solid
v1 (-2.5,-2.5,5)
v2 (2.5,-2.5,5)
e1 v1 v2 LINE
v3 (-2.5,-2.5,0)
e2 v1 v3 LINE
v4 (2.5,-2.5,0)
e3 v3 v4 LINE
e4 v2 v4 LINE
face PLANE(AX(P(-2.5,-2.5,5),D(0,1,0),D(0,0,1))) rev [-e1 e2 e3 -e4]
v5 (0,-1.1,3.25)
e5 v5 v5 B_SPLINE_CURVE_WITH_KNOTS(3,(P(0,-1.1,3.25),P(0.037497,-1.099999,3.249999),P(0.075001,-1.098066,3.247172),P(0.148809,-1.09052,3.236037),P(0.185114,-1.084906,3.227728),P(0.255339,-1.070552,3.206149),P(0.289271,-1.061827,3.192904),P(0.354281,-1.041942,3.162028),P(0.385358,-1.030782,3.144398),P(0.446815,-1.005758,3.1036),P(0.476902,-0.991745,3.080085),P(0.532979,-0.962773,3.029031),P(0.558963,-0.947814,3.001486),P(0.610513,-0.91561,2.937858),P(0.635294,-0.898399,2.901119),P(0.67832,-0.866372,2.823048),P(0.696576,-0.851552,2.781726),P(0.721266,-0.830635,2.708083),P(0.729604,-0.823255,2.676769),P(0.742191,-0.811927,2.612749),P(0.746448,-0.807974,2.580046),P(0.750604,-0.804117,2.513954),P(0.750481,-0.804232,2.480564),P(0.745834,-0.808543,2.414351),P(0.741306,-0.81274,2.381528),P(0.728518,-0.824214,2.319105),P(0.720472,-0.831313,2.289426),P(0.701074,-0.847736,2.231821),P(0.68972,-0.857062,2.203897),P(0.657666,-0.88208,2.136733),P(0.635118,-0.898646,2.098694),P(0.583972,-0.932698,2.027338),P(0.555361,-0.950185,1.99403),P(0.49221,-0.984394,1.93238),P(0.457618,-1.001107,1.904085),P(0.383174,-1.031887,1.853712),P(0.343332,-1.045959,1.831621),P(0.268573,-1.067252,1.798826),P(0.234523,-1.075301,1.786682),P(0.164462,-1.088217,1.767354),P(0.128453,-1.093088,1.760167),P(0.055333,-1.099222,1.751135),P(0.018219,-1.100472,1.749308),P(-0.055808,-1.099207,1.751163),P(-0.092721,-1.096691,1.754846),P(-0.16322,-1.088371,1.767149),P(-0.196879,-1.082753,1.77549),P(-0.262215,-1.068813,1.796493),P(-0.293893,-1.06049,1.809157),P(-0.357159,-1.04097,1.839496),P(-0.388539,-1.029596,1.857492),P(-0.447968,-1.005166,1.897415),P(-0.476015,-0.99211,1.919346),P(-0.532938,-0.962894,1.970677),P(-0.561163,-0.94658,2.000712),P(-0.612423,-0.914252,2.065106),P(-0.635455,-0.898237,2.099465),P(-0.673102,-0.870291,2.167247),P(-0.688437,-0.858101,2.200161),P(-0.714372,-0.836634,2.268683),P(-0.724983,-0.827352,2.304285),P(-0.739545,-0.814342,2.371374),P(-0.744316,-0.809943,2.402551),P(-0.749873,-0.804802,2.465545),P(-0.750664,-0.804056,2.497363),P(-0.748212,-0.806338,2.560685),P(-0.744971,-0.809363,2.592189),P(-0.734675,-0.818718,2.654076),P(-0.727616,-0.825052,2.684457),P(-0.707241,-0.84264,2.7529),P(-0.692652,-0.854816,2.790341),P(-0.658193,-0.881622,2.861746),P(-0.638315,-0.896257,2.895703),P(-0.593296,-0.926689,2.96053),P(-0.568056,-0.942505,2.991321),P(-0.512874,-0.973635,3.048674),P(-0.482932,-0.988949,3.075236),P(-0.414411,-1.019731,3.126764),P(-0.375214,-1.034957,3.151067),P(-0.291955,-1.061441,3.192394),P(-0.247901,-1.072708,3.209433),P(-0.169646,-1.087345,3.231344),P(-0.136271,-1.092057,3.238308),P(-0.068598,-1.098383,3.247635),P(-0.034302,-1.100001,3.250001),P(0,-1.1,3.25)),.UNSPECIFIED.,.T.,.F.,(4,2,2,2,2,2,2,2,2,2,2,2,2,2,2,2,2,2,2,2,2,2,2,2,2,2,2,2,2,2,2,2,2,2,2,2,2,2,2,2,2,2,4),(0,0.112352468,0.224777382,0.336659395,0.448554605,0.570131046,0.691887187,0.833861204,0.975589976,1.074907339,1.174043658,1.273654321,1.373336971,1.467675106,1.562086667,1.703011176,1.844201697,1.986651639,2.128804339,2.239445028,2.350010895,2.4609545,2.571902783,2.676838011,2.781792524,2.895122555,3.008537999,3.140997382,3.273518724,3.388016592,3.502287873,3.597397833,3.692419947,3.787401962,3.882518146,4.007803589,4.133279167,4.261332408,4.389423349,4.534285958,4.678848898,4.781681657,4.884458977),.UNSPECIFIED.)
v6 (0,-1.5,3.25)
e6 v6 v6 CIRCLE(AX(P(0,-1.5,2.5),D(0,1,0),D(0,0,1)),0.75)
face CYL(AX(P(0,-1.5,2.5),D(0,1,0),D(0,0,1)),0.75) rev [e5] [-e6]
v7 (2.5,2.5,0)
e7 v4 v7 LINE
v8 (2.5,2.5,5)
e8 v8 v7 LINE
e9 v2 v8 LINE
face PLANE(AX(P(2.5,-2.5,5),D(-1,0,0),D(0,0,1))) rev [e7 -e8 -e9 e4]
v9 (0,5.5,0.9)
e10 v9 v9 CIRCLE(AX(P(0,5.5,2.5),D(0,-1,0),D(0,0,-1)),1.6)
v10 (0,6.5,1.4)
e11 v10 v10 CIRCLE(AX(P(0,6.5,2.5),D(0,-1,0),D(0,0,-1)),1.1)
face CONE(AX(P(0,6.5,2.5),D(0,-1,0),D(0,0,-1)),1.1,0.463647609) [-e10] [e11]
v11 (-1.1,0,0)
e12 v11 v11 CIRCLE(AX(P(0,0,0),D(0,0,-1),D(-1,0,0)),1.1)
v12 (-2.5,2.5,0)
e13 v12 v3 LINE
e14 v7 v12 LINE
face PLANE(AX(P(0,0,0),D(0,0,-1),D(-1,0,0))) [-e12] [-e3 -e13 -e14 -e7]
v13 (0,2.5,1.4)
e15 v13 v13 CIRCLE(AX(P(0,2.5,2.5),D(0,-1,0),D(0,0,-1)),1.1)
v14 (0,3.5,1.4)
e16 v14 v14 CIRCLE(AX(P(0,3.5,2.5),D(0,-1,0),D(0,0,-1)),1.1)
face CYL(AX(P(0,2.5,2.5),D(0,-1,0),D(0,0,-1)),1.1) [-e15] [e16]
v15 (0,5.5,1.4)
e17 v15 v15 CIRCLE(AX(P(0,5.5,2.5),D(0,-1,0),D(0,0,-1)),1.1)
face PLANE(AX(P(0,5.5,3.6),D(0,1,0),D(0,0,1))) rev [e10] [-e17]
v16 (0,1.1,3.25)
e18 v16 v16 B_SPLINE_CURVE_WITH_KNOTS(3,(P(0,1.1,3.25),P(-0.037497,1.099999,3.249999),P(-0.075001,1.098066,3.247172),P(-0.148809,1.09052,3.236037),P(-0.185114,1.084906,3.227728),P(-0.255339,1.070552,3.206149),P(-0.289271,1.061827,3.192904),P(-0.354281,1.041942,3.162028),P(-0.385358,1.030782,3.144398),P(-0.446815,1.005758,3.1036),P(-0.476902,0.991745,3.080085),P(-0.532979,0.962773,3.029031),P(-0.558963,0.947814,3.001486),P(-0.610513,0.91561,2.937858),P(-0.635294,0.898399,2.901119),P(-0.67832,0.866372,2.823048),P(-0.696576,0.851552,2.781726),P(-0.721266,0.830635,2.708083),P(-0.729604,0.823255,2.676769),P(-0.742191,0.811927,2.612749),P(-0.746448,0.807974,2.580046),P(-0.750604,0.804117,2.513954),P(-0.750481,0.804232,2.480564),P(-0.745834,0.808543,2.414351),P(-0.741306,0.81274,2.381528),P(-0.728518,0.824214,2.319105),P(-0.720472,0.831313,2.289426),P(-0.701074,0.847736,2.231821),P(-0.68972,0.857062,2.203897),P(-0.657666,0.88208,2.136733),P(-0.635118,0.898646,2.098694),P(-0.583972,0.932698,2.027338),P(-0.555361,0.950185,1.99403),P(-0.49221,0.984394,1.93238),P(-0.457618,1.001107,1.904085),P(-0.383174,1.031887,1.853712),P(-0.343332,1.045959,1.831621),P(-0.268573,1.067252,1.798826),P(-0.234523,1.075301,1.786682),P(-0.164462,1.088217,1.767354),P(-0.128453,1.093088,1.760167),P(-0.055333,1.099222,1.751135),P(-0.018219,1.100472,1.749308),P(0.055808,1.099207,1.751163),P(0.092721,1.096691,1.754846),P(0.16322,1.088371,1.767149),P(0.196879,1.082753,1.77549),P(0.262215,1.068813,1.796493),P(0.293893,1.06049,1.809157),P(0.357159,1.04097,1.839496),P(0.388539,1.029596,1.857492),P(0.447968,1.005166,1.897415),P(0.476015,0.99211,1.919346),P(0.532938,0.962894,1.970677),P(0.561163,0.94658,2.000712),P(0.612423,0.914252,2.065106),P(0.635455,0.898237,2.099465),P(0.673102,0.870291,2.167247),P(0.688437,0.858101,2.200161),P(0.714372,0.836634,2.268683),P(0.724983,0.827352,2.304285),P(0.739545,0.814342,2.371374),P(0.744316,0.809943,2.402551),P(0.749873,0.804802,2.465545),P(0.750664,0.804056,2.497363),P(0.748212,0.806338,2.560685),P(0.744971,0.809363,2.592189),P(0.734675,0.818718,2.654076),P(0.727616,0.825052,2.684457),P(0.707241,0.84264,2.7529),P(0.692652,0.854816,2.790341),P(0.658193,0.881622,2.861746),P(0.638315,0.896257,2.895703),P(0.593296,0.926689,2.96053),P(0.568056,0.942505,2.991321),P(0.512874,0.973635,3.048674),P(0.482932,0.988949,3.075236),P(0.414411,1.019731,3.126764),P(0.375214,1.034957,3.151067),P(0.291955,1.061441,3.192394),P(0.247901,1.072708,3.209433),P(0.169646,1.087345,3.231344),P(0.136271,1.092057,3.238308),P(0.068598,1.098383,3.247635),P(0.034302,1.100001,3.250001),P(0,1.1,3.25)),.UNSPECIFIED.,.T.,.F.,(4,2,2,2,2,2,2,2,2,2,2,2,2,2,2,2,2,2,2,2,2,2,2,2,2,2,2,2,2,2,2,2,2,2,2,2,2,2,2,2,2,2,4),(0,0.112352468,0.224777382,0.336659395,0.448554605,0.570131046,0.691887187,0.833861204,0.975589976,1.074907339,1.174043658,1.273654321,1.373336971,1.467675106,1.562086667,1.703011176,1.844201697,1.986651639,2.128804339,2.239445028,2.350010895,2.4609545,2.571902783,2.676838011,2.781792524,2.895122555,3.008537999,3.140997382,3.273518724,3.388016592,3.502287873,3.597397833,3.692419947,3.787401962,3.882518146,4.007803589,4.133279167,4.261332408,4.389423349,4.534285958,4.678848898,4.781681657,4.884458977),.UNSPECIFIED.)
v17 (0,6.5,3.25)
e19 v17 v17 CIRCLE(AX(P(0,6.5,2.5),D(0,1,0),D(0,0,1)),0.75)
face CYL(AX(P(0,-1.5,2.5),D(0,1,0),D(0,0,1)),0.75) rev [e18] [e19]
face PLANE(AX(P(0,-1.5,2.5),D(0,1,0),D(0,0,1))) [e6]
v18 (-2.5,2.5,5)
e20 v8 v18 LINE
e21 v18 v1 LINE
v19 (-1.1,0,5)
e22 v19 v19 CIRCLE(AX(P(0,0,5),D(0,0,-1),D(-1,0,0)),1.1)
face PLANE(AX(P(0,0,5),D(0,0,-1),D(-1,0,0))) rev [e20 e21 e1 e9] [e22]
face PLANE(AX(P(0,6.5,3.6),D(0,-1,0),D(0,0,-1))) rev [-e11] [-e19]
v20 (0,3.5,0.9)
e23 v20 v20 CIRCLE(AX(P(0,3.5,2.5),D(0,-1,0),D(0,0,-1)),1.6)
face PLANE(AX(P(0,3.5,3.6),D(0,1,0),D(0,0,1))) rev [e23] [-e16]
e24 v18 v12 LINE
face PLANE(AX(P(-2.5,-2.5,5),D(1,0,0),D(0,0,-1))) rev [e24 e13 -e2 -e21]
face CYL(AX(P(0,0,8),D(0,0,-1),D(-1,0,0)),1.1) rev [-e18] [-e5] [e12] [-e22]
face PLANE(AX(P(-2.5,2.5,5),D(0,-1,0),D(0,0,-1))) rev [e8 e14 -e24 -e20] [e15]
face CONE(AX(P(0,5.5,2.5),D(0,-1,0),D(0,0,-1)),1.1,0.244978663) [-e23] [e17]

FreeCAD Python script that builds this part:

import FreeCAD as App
import Part
import Sketcher
Q = App.Units.Quantity

doc = App.newDocument("Part")
params = doc.addObject("Spreadsheet::Sheet", "Params")
for row, (alias, value) in enumerate([
    ("sketch1_width", "5 mm"),
    ("pad1_length", "5 mm"),
    ("sketch2_width", "4 mm"),
    ("sketch2_width2", "1 mm"),
    ("sketch2_height", "1.1 mm"),
    ("sketch2_height2", "0.5 mm"),
    ("revolution_angle", "360 deg"),
    ("sketch3_diameter", "1.5 mm"),
    ("pocket1_length", "8 mm"),
    ("sketch4_diameter", "2.2 mm"),
    ("pocket2_length", "8 mm"),
], start=1):
    params.set(f"A{row}", alias)
    params.set(f"B{row}", "=" + value)
    params.setAlias(f"B{row}", alias)

body = doc.addObject("PartDesign::Body", "Body")

sketch1 = doc.addObject("Sketcher::SketchObject", "Sketch")
body.addObject(sketch1)
sketch1.AttachmentSupport = (doc.XY_Plane, [""])
sketch1.MapMode = "FlatFace"
sketch1.addGeometry(Part.LineSegment(App.Vector(-2, 2, 0), App.Vector(-2, -2, 0)), False)
sketch1.addGeometry(Part.LineSegment(App.Vector(-2, -2, 0), App.Vector(2, -2, 0)), False)
sketch1.addGeometry(Part.LineSegment(App.Vector(2, -2, 0), App.Vector(2, 2, 0)), False)
sketch1.addGeometry(Part.LineSegment(App.Vector(2, 2, 0), App.Vector(-2, 2, 0)), False)
sketch1.addConstraint(Sketcher.Constraint("Coincident", 0, 2, 1, 1))
sketch1.addConstraint(Sketcher.Constraint("Coincident", 1, 2, 2, 1))
sketch1.addConstraint(Sketcher.Constraint("Coincident", 2, 2, 3, 1))
sketch1.addConstraint(Sketcher.Constraint("Coincident", 3, 2, 0, 1))
sketch1.addConstraint(Sketcher.Constraint("Vertical", 0))
sketch1.addConstraint(Sketcher.Constraint("Horizontal", 1))
sketch1.addConstraint(Sketcher.Constraint("Vertical", 2))
sketch1.addConstraint(Sketcher.Constraint("Horizontal", 3))
sketch1.addConstraint(Sketcher.Constraint("Symmetric", 0, 2, 2, 2, -1, 1))
sketch1.addConstraint(Sketcher.Constraint("Equal", 3, 0))
sketch1.addConstraint(Sketcher.Constraint("DistanceX", 1, 1, 1, 2, Q("5 mm")))
sketch1.setExpression("Constraints[10]", "Params.sketch1_width")
pad1 = doc.addObject("PartDesign::Pad", "Pad")
body.addObject(pad1)
pad1.Profile = sketch1
pad1.setExpression("Length", "Params.pad1_length")

sketch2 = doc.addObject("Sketcher::SketchObject", "Sketch001")
body.addObject(sketch2)
sketch2.AttachmentSupport = (doc.YZ_Plane, [""])
sketch2.MapMode = "FlatFace"
sketch2.addGeometry(Part.LineSegment(App.Vector(2.5, 2.5, 0), App.Vector(6.5, 2.5, 0)), False)
sketch2.addGeometry(Part.LineSegment(App.Vector(6.5, 2.5, 0), App.Vector(6.5, 3.6, 0)), False)
sketch2.addGeometry(Part.LineSegment(App.Vector(6.5, 3.6, 0), App.Vector(5.5, 4.1, 0)), False)
sketch2.addGeometry(Part.LineSegment(App.Vector(5.5, 4.1, 0), App.Vector(5.5, 3.6, 0)), False)
sketch2.addGeometry(Part.LineSegment(App.Vector(5.5, 3.6, 0), App.Vector(3.5, 4.1, 0)), False)
sketch2.addGeometry(Part.LineSegment(App.Vector(3.5, 4.1, 0), App.Vector(3.5, 3.6, 0)), False)
sketch2.addGeometry(Part.LineSegment(App.Vector(3.5, 3.6, 0), App.Vector(2.5, 3.6, 0)), False)
sketch2.addGeometry(Part.LineSegment(App.Vector(2.5, 3.6, 0), App.Vector(2.5, 2.5, 0)), False)
sketch2.addGeometry(Part.LineSegment(App.Vector(2.5, 2.5, 0), App.Vector(6.5, 2.5, 0)), True)
sketch2.addConstraint(Sketcher.Constraint("Coincident", 0, 2, 1, 1))
sketch2.addConstraint(Sketcher.Constraint("Coincident", 1, 2, 2, 1))
sketch2.addConstraint(Sketcher.Constraint("Coincident", 2, 2, 3, 1))
sketch2.addConstraint(Sketcher.Constraint("Coincident", 3, 2, 4, 1))
sketch2.addConstraint(Sketcher.Constraint("Coincident", 4, 2, 5, 1))
sketch2.addConstraint(Sketcher.Constraint("Coincident", 5, 2, 6, 1))
sketch2.addConstraint(Sketcher.Constraint("Coincident", 6, 2, 7, 1))
sketch2.addConstraint(Sketcher.Constraint("Coincident", 7, 2, 0, 1))
sketch2.addConstraint(Sketcher.Constraint("Horizontal", 0))
sketch2.addConstraint(Sketcher.Constraint("Vertical", 1))
sketch2.addConstraint(Sketcher.Constraint("Vertical", 3))
sketch2.addConstraint(Sketcher.Constraint("Vertical", 5))
sketch2.addConstraint(Sketcher.Constraint("Horizontal", 6))
sketch2.addConstraint(Sketcher.Constraint("Vertical", 7))
sketch2.addConstraint(Sketcher.Constraint("Horizontal", 8))
sketch2.addConstraint(Sketcher.Constraint("Coincident", 8, 1, 7, 2))
sketch2.addConstraint(Sketcher.Constraint("Horizontal", 1, 2, 3, 2))
sketch2.addConstraint(Sketcher.Constraint("Horizontal", 2, 2, 4, 2))
sketch2.addConstraint(Sketcher.Constraint("Horizontal", 3, 2, 5, 2))
sketch2.addConstraint(Sketcher.Constraint("Vertical", 1, 2, 8, 2))
sketch2.addConstraint(Sketcher.Constraint("DistanceX", 0, 1, 0, 2, Q("4 mm")))
sketch2.addConstraint(Sketcher.Constraint("DistanceX", 6, 2, 6, 1, Q("1 mm")))
sketch2.addConstraint(Sketcher.Constraint("DistanceY", 1, 1, 1, 2, Q("1.1 mm")))
sketch2.addConstraint(Sketcher.Constraint("DistanceY", 3, 2, 3, 1, Q("0.5 mm")))
sketch2.addConstraint(Sketcher.Constraint("DistanceX", 2, 2, 1, 2, Q("1 mm")))
sketch2.addConstraint(Sketcher.Constraint("DistanceX", -1, 1, 0, 2, Q("6.5 mm")))
sketch2.addConstraint(Sketcher.Constraint("DistanceY", -1, 1, 0, 2, Q("2.5 mm")))
sketch2.setExpression("Constraints[20]", "Params.sketch2_width")
sketch2.setExpression("Constraints[21]", "Params.sketch2_width2")
sketch2.setExpression("Constraints[22]", "Params.sketch2_height")
sketch2.setExpression("Constraints[23]", "Params.sketch2_height2")
revolution = doc.addObject("PartDesign::Revolution", "Revolution")
body.addObject(revolution)
revolution.Profile = sketch2
revolution.ReferenceAxis = (sketch2, ["Axis0"])
revolution.setExpression("Angle", "Params.revolution_angle")

sketch3 = doc.addObject("Sketcher::SketchObject", "Sketch002")
body.addObject(sketch3)
sketch3.AttachmentSupport = (doc.XZ_Plane, [""])
sketch3.MapMode = "FlatFace"
sketch3.AttachmentOffset = App.Placement(App.Vector(0, 0, -6.5), App.Rotation())
sketch3.addGeometry(Part.Circle(App.Vector(0, 2.5, 0), App.Vector(0, 0, 1), 0.8), False)
sketch3.addConstraint(Sketcher.Constraint("PointOnObject", 0, 3, -2))
sketch3.addConstraint(Sketcher.Constraint("Diameter", 0, Q("1.5 mm")))
sketch3.addConstraint(Sketcher.Constraint("DistanceY", -1, 1, 0, 3, Q("2.5 mm")))
sketch3.setExpression("Constraints[1]", "Params.sketch3_diameter")
pocket1 = doc.addObject("PartDesign::Pocket", "Pocket")
body.addObject(pocket1)
pocket1.Profile = sketch3
pocket1.setExpression("Length", "Params.pocket1_length")
pocket1.Reversed = True

sketch4 = doc.addObject("Sketcher::SketchObject", "Sketch003")
body.addObject(sketch4)
sketch4.AttachmentSupport = (doc.XY_Plane, [""])
sketch4.MapMode = "FlatFace"
sketch4.addGeometry(Part.Circle(App.Vector(0, 0, 0), App.Vector(0, 0, 1), 1.1), False)
sketch4.addConstraint(Sketcher.Constraint("Coincident", 0, 3, -1, 1))
sketch4.addConstraint(Sketcher.Constraint("Diameter", 0, Q("2.2 mm")))
sketch4.setExpression("Constraints[1]", "Params.sketch4_diameter")
pocket2 = doc.addObject("PartDesign::Pocket", "Pocket001")
body.addObject(pocket2)
pocket2.Profile = sketch4
pocket2.setExpression("Length", "Params.pocket2_length")
pocket2.Reversed = True

doc.recompute()
